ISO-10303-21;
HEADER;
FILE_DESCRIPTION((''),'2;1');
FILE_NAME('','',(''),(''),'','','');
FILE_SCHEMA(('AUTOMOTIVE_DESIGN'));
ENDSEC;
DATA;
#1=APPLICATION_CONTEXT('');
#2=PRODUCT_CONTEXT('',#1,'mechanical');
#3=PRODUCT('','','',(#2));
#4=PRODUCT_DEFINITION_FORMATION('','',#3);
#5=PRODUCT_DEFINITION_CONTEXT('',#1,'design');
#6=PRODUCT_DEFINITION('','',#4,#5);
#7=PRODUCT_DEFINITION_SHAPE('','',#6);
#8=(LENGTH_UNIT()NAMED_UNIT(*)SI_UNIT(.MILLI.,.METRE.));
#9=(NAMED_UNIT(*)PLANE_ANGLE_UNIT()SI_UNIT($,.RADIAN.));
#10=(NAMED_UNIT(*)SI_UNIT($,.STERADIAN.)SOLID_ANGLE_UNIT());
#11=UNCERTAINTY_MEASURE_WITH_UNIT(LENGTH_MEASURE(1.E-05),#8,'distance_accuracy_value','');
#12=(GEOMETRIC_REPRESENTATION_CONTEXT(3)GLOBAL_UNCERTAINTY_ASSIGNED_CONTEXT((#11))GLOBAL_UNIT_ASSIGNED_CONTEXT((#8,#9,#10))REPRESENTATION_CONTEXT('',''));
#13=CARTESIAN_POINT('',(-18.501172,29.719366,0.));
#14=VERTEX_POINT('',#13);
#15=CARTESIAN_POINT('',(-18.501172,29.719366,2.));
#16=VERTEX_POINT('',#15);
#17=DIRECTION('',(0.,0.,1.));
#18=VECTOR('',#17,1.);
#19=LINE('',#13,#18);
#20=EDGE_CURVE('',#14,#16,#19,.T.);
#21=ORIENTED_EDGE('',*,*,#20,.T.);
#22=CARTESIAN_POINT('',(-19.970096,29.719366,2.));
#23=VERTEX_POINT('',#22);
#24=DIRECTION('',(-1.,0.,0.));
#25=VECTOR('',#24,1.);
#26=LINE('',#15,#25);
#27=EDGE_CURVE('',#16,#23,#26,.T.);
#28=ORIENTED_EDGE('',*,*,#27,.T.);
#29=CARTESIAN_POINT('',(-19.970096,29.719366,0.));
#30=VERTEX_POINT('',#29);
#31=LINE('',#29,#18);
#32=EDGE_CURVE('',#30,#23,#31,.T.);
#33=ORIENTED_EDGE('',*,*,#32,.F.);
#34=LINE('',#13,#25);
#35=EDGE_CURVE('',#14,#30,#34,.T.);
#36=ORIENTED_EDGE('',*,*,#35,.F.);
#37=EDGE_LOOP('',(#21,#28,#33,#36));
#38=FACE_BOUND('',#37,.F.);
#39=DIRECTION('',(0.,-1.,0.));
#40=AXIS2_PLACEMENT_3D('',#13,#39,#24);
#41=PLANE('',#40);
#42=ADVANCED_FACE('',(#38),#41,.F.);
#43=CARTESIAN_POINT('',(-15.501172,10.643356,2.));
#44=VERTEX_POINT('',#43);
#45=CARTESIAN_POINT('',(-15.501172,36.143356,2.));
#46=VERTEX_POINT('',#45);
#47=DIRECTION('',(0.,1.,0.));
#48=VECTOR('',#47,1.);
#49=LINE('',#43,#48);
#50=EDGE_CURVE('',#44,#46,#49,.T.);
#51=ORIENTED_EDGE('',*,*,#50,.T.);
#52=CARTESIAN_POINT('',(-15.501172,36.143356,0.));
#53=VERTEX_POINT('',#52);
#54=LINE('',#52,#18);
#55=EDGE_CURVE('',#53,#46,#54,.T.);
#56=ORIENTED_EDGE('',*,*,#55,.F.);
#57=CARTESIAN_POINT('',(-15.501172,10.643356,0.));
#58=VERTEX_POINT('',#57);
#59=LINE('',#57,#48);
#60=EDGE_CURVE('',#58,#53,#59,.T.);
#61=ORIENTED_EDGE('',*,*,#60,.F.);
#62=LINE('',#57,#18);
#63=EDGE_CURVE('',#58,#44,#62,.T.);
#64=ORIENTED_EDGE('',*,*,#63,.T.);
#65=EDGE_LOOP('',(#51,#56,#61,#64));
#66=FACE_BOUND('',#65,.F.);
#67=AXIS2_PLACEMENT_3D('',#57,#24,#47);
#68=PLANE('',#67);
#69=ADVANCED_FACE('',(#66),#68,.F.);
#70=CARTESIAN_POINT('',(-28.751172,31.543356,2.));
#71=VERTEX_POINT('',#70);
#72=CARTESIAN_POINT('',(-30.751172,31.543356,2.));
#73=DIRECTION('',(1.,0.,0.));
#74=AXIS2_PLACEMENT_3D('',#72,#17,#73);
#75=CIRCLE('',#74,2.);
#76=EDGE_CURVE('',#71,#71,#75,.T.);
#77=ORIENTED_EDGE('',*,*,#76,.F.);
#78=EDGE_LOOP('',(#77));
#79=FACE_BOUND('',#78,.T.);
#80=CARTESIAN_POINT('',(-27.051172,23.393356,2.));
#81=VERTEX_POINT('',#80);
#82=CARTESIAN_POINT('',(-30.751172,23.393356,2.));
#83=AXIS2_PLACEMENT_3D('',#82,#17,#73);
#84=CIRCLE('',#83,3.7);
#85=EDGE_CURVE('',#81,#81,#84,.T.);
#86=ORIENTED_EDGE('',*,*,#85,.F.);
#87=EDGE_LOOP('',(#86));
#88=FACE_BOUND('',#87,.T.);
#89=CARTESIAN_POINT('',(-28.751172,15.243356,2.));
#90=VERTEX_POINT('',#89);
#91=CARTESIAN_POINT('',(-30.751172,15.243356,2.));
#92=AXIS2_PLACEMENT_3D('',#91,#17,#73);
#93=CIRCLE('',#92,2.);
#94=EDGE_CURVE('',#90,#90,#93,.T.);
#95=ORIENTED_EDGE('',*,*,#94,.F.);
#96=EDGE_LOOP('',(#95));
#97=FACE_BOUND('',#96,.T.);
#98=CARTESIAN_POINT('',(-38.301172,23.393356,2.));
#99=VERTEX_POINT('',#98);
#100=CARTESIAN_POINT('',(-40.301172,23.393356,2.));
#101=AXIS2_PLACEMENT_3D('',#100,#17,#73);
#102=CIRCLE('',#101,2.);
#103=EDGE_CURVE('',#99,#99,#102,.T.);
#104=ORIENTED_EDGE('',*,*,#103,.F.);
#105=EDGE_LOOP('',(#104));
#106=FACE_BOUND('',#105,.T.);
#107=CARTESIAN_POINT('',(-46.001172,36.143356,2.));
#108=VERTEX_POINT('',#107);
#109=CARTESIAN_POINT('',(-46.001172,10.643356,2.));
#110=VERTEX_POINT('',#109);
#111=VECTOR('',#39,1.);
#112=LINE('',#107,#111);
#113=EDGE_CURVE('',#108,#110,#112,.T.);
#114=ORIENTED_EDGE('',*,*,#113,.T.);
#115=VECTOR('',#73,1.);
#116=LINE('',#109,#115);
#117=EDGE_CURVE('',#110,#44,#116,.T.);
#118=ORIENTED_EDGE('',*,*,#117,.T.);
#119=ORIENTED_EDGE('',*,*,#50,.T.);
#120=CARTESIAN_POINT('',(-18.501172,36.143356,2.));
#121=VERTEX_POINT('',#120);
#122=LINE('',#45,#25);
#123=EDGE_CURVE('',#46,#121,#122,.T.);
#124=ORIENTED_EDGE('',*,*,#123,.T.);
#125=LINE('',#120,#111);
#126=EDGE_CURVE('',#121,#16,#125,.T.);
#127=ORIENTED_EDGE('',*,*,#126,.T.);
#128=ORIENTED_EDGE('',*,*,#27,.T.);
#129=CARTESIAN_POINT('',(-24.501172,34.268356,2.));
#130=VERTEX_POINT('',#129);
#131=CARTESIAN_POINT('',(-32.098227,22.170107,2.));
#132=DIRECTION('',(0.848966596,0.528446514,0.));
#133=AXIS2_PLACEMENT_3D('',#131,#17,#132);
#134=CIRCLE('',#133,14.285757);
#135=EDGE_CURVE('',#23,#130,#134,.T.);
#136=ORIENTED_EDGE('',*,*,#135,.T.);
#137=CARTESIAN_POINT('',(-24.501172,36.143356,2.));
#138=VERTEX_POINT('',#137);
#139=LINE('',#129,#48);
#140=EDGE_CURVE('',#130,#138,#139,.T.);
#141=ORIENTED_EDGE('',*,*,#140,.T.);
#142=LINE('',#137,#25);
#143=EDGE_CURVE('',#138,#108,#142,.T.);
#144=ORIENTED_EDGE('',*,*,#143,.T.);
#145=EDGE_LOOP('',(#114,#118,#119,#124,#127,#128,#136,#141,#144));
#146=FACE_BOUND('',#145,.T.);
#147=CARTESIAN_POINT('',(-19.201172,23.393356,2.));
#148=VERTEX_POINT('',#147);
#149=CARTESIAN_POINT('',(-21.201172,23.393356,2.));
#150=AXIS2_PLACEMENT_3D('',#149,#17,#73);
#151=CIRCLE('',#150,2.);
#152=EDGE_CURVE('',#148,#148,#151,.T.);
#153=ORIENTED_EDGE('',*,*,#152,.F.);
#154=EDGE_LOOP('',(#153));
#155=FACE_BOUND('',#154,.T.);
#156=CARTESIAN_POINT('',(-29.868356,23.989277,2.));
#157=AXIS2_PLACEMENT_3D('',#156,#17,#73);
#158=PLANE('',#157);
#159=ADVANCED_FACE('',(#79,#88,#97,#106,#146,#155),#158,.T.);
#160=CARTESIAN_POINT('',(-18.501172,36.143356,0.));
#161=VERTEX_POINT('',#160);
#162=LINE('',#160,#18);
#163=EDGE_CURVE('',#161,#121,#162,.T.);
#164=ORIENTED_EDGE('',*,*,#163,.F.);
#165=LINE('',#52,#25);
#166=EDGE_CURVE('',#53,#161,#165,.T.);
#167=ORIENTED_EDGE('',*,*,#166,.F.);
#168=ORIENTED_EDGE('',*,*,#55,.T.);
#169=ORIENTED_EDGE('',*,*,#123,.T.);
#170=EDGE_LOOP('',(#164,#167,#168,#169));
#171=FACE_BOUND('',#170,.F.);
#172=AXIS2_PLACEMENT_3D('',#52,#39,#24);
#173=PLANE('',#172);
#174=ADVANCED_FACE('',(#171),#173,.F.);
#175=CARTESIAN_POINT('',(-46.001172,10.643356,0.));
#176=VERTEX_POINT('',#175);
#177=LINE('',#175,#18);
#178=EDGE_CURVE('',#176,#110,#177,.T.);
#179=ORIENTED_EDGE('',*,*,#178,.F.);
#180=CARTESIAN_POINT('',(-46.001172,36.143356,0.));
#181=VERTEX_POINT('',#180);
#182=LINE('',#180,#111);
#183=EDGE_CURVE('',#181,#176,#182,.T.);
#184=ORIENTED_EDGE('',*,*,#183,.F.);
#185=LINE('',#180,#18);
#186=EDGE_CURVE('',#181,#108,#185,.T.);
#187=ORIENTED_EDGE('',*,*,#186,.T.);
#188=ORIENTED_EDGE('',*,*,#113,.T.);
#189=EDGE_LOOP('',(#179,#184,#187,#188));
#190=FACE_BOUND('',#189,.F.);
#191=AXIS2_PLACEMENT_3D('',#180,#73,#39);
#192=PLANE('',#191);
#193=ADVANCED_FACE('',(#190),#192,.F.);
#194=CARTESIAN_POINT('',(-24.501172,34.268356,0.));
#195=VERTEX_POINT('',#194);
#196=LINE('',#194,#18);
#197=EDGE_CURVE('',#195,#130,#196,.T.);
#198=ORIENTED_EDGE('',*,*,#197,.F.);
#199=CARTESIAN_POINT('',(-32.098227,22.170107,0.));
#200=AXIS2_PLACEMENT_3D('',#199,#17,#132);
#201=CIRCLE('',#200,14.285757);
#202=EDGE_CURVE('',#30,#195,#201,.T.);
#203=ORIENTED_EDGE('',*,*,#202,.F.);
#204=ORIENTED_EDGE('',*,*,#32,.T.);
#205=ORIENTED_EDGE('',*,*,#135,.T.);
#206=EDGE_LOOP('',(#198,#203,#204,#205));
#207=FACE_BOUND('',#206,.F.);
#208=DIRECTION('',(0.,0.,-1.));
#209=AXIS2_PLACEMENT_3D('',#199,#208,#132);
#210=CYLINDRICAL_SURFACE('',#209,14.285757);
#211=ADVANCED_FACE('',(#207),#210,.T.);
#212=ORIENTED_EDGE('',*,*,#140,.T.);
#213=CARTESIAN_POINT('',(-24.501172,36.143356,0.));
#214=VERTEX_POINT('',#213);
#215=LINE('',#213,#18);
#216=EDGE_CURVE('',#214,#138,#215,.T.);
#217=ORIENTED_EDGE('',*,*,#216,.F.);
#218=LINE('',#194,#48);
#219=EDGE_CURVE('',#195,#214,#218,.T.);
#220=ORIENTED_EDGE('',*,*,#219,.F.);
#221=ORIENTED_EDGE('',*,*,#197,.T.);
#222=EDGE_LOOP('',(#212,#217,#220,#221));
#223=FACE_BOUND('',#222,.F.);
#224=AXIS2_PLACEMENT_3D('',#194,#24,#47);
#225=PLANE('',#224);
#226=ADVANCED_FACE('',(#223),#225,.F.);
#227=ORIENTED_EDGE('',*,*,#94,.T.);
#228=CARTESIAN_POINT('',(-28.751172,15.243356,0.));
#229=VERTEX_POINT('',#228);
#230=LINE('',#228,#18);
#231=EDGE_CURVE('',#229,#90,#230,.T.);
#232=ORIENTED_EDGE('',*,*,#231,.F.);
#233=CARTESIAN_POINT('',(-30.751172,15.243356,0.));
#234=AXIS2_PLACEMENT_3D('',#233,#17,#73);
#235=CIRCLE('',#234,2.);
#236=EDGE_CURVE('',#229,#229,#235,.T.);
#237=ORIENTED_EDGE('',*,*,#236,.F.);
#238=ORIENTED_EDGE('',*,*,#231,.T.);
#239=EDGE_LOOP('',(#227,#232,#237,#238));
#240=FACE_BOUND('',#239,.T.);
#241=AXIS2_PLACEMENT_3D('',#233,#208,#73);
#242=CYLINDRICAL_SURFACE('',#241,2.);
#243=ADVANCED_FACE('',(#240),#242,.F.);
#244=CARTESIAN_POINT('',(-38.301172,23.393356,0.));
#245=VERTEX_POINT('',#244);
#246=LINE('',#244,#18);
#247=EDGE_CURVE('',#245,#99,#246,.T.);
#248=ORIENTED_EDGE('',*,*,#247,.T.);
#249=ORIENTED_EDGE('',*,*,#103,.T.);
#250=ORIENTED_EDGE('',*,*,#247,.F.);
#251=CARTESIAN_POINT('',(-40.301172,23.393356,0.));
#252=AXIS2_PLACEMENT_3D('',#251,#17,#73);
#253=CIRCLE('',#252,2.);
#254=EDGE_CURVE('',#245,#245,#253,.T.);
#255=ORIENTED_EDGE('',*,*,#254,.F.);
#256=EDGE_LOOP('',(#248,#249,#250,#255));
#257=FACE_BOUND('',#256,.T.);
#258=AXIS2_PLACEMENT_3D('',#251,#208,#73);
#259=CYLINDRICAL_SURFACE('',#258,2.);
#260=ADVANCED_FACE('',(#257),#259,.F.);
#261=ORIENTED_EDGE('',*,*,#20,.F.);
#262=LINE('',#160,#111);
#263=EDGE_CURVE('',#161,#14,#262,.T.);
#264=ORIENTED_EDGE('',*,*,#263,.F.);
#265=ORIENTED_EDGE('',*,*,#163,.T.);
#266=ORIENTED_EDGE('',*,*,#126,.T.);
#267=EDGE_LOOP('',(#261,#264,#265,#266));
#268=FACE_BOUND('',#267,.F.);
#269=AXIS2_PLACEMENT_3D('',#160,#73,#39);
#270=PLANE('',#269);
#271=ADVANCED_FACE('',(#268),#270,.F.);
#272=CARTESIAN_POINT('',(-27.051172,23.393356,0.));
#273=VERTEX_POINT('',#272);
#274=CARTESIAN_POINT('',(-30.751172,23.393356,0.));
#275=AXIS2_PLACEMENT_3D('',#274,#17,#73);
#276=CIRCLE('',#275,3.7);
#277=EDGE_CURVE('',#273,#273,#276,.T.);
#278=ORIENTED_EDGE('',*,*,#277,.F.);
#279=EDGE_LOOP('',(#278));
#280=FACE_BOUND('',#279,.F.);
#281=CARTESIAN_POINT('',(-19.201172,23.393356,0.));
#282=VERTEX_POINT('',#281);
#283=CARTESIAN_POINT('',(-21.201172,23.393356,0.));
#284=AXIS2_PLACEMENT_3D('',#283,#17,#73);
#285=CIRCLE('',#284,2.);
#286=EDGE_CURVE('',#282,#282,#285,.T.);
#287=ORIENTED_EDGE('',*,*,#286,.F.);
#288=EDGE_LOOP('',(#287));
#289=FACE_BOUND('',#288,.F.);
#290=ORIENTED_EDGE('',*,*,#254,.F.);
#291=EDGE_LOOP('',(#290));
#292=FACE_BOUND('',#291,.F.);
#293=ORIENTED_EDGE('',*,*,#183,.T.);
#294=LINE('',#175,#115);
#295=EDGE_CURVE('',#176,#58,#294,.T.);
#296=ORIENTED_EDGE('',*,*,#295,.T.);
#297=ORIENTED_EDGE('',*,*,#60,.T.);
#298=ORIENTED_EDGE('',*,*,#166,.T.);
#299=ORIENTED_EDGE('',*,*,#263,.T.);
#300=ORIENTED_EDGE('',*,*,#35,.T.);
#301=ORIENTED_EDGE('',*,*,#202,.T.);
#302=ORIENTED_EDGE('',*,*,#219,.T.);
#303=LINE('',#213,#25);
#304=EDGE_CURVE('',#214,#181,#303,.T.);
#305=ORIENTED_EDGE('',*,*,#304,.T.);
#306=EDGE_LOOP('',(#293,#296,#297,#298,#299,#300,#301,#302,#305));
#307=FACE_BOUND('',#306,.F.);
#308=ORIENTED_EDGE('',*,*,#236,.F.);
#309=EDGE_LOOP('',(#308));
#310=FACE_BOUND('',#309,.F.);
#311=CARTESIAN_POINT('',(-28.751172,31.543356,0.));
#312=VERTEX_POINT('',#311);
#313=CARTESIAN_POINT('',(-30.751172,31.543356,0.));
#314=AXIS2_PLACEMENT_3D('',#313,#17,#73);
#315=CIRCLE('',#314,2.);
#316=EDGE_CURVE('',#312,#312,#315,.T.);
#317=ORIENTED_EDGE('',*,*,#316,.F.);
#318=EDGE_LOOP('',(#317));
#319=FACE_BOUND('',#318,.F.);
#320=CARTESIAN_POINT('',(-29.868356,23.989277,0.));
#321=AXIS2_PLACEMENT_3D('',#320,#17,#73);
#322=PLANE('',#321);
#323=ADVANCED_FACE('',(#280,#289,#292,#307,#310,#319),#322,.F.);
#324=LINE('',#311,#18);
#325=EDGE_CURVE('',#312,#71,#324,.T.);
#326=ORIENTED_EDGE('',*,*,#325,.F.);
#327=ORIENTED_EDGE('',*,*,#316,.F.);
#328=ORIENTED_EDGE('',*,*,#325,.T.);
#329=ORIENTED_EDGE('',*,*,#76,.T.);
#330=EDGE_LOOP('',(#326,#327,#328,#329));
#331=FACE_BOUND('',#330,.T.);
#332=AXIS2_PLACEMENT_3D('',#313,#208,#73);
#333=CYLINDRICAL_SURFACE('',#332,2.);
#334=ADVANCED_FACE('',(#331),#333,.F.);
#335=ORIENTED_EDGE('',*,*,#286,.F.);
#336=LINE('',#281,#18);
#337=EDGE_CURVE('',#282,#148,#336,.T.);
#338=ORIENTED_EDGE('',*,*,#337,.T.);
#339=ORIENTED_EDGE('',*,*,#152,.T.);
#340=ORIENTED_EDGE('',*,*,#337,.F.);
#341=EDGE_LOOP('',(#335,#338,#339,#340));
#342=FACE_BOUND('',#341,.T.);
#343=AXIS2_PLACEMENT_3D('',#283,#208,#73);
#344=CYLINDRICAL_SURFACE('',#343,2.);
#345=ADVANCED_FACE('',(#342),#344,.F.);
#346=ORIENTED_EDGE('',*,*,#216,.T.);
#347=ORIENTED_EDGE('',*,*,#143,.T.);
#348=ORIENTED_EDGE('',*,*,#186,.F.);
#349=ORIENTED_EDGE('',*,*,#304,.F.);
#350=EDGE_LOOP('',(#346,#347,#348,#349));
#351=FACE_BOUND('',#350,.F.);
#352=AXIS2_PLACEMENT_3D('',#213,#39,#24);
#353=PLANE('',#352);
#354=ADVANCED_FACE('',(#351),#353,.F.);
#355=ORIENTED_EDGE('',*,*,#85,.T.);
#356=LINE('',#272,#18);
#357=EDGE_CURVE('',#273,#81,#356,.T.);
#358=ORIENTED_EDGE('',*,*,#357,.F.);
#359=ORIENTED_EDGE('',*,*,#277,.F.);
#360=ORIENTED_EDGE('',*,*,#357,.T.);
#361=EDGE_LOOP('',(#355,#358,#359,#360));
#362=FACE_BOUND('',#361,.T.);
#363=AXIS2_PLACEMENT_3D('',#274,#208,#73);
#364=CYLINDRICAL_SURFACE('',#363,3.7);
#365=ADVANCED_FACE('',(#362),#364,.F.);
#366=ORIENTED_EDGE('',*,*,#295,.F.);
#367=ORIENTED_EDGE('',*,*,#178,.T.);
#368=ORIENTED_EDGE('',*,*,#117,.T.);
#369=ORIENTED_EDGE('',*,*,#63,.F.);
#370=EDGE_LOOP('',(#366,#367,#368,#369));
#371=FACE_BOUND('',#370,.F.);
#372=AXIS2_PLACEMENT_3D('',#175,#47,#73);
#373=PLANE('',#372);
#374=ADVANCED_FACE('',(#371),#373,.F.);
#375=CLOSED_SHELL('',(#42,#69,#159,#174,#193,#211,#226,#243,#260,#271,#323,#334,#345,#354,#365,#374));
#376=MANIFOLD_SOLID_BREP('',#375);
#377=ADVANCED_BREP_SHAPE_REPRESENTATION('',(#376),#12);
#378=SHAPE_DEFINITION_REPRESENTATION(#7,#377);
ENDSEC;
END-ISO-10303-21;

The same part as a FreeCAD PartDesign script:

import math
import FreeCAD as App
import Part
import Sketcher
Q = App.Units.Quantity

doc = App.newDocument("Part")
body = doc.addObject("PartDesign::Body", "Body")

# Sketch on XY plane
sketch1 = body.newObject("Sketcher::SketchObject", "Sketch")
sketch1.AttachmentSupport = (doc.getObject("XY_Plane"), [""])
sketch1.MapMode = "FlatFace"
sketch1.addGeometry([
    Part.LineSegment(App.Vector(-46, 36.1, 0), App.Vector(-46, 10.6, 0)),  # 0
    Part.LineSegment(App.Vector(-46, 10.6, 0), App.Vector(-15.5, 10.6, 0)),  # 1
    Part.LineSegment(App.Vector(-15.5, 10.6, 0), App.Vector(-15.5, 36.1, 0)),  # 2
    Part.LineSegment(App.Vector(-15.5, 36.1, 0), App.Vector(-18.5, 36.1, 0)),  # 3
    Part.LineSegment(App.Vector(-18.5, 36.1, 0), App.Vector(-18.5, 29.7, 0)),  # 4
    Part.LineSegment(App.Vector(-18.5, 29.7, 0), App.Vector(-20, 29.7, 0)),  # 5
    Part.ArcOfCircle(Part.Circle(App.Vector(-32.1, 22.2, 0), App.Vector(0, 0, 1), 14.3), math.radians(32), math.radians(58)),  # 6
    Part.LineSegment(App.Vector(-24.5, 34.3, 0), App.Vector(-24.5, 36.1, 0)),  # 7
    Part.LineSegment(App.Vector(-24.5, 36.1, 0), App.Vector(-46, 36.1, 0)),  # 8
    Part.Circle(App.Vector(-30.8, 15.2, 0), App.Vector(0, 0, 1), 2),  # 9
    Part.Circle(App.Vector(-40.3, 23.4, 0), App.Vector(0, 0, 1), 2),  # 10
    Part.Circle(App.Vector(-30.8, 23.4, 0), App.Vector(0, 0, 1), 3.7),  # 11
    Part.Circle(App.Vector(-21.2, 23.4, 0), App.Vector(0, 0, 1), 2),  # 12
    Part.Circle(App.Vector(-30.8, 31.5, 0), App.Vector(0, 0, 1), 2),  # 13
], False)
sketch1.addConstraint([
    Sketcher.Constraint("Coincident", 0, 2, 1, 1),
    Sketcher.Constraint("Coincident", 1, 2, 2, 1),
    Sketcher.Constraint("Coincident", 2, 2, 3, 1),
    Sketcher.Constraint("Coincident", 3, 2, 4, 1),
    Sketcher.Constraint("Coincident", 4, 2, 5, 1),
    Sketcher.Constraint("Coincident", 5, 2, 6, 1),
    Sketcher.Constraint("Coincident", 6, 2, 7, 1),
    Sketcher.Constraint("Coincident", 7, 2, 8, 1),
    Sketcher.Constraint("Coincident", 8, 2, 0, 1),
    Sketcher.Constraint("Vertical", 0),
    Sketcher.Constraint("Horizontal", 1),
    Sketcher.Constraint("Vertical", 2),
    Sketcher.Constraint("Horizontal", 3),
    Sketcher.Constraint("Vertical", 4),
    Sketcher.Constraint("Horizontal", 5),
    Sketcher.Constraint("Vertical", 7),
    Sketcher.Constraint("Horizontal", 8),
    Sketcher.Constraint("Equal", 9, 10),
    Sketcher.Constraint("Equal", 10, 12),
    Sketcher.Constraint("Equal", 12, 13),
    Sketcher.Constraint("Horizontal", 10, 3, 11, 3),
    Sketcher.Constraint("Horizontal", 11, 3, 12, 3),
    Sketcher.Constraint("Horizontal", 3, 2, 7, 2),
    Sketcher.Constraint("Vertical", 9, 3, 11, 3),
    Sketcher.Constraint("Vertical", 11, 3, 13, 3),
    Sketcher.Constraint("Diameter", 9, Q("4 mm")),
    Sketcher.Constraint("Diameter", 11, Q("7.4 mm")),
    Sketcher.Constraint("DistanceX", 3, 2, 3, 1, Q("3 mm")),
    Sketcher.Constraint("DistanceX", 1, 1, 1, 2, Q("30.5 mm")),
    Sketcher.Constraint("DistanceX", 8, 2, 8, 1, Q("21.5 mm")),
    Sketcher.Constraint("DistanceY", 0, 2, 0, 1, Q("25.5 mm")),
    Sketcher.Constraint("DistanceX", 10, 3, 12, 3, Q("19.1 mm")),
    Sketcher.Constraint("DistanceY", 9, 3, 13, 3, Q("16.3 mm")),
    Sketcher.Constraint("DistanceX", 0, 2, 10, 3, Q("5.7 mm")),
    Sketcher.Constraint("DistanceY", 0, 2, 9, 3, Q("4.6 mm")),
    Sketcher.Constraint("DistanceY", 7, 1, 7, 2, Q("1.875 mm")),
    Sketcher.Constraint("DistanceX", 10, 3, 9, 3, Q("9.55 mm")),
    Sketcher.Constraint("DistanceY", 9, 3, 10, 3, Q("8.15 mm")),
    Sketcher.Constraint("Radius", 6, Q("14.285757 mm")),
    Sketcher.Constraint("DistanceY", 4, 2, 4, 1, Q("6.42399 mm")),
    Sketcher.Constraint("DistanceX", 5, 2, 5, 1, Q("1.468924 mm")),
    Sketcher.Constraint("DistanceX", 12, 3, -1, 1, Q("21.201172 mm")),
    Sketcher.Constraint("DistanceY", -1, 1, 6, 3, Q("22.170107 mm")),
])
pad1 = body.newObject("PartDesign::Pad", "Pad")
pad1.Profile = sketch1
pad1.Length = 2

doc.recompute()
